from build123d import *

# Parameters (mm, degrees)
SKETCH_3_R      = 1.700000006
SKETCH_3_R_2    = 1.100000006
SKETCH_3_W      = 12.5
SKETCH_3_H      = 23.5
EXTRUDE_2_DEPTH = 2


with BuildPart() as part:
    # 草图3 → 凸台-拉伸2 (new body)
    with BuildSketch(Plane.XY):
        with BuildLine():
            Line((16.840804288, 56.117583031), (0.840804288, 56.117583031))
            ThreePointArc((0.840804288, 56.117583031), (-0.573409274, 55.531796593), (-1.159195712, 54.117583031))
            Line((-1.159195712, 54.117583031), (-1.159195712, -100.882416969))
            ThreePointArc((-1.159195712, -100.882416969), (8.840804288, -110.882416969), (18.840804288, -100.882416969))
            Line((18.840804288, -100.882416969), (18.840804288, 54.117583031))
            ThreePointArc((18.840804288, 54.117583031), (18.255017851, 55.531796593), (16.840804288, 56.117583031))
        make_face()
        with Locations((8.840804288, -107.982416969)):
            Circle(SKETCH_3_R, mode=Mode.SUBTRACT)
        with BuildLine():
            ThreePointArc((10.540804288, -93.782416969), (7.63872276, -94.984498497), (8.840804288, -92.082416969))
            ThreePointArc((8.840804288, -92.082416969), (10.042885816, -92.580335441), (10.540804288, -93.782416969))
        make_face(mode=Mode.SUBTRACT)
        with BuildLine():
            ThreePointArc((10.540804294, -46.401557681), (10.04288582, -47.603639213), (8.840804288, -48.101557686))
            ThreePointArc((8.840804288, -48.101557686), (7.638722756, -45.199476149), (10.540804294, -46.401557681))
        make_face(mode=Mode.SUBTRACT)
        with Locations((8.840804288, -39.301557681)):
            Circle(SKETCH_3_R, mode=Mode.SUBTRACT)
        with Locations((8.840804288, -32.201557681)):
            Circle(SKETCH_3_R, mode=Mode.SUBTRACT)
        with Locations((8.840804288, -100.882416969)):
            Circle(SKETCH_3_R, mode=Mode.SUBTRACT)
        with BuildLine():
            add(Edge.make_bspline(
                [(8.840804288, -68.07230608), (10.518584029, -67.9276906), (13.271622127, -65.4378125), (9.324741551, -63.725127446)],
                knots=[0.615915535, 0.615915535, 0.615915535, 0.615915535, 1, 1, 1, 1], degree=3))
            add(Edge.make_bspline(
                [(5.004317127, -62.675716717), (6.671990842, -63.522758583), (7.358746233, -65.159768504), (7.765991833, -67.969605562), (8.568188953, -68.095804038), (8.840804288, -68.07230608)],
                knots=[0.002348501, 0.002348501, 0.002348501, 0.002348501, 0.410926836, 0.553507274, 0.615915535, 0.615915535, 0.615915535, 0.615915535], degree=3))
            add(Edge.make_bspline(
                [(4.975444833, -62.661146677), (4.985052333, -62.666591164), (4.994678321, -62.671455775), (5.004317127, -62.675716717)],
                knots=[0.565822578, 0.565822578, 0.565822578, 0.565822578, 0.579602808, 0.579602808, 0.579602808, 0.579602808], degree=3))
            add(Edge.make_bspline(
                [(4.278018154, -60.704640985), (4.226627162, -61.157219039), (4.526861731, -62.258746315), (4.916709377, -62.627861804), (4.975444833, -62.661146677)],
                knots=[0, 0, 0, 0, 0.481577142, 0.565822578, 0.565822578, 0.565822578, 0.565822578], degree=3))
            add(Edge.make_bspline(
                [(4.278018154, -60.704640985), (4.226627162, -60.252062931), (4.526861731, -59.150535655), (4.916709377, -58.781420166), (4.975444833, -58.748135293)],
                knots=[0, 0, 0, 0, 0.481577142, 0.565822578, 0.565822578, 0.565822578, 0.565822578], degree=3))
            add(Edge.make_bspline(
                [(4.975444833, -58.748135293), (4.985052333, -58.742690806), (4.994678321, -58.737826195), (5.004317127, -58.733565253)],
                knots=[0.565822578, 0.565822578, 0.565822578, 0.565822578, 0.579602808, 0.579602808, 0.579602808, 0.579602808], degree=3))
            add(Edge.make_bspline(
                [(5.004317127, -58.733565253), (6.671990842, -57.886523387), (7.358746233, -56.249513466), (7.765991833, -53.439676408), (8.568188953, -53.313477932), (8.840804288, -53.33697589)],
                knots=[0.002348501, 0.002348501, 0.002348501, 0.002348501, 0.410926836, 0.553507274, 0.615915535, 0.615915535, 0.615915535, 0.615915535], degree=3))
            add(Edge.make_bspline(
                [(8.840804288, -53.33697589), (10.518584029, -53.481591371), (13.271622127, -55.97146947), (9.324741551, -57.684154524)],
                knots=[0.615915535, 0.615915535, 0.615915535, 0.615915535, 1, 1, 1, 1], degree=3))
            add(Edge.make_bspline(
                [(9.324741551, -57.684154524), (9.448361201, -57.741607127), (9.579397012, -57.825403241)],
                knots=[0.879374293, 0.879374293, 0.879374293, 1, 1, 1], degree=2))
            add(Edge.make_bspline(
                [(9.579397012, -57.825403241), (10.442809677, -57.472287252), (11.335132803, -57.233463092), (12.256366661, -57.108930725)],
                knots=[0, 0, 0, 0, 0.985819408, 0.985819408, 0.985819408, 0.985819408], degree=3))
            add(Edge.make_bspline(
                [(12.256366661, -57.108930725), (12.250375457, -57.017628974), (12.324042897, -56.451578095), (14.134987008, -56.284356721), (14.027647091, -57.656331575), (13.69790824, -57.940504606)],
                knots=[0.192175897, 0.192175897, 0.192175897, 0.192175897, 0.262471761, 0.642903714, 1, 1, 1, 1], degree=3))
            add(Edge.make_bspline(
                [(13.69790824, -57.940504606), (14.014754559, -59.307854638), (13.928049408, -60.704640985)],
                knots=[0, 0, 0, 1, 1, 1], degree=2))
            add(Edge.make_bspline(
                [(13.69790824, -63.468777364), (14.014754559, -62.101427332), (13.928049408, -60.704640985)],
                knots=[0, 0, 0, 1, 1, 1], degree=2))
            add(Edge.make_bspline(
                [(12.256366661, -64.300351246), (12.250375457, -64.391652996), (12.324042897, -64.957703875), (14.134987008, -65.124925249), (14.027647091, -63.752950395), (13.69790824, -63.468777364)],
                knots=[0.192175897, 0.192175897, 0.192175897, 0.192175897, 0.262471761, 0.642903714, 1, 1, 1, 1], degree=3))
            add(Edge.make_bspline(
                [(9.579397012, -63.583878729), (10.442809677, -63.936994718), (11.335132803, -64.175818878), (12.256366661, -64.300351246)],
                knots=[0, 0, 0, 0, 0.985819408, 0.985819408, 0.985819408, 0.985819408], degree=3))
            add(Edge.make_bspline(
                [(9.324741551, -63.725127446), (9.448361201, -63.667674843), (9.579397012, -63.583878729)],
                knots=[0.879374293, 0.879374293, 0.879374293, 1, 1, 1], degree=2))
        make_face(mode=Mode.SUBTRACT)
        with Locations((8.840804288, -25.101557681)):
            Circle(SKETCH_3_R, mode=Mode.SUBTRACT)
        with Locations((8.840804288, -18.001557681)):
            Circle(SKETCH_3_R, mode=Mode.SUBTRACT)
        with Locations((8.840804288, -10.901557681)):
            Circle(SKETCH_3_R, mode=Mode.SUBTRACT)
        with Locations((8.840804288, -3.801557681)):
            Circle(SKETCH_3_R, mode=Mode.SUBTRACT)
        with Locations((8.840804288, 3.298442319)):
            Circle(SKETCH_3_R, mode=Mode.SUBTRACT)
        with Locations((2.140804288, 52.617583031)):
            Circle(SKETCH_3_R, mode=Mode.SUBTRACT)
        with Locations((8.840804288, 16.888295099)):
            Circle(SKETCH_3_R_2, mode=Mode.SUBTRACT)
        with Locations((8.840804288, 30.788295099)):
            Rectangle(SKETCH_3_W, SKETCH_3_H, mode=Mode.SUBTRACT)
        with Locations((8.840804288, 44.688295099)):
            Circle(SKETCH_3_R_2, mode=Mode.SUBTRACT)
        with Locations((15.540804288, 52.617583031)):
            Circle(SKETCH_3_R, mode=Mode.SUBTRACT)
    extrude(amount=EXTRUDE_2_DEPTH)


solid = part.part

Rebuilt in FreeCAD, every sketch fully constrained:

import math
import FreeCAD as App
import Part
import Sketcher

doc = App.newDocument("Part")
body = doc.addObject("PartDesign::Body", "Body")

sketch1 = doc.addObject("Sketcher::SketchObject", "Sketch")
body.addObject(sketch1)
sketch1.AttachmentSupport = (doc.XY_Plane, [""])
sketch1.MapMode = "FlatFace"
sketch1.addGeometry(Part.LineSegment(App.Vector(16.840804, 56.117583, 0), App.Vector(0.840804, 56.117583, 0)), False)
sketch1.addGeometry(Part.ArcOfCircle(Part.Circle(App.Vector(0.840804, 54.117583, 0), App.Vector(0, 0, 1), 2), math.radians(90), math.radians(180)), False)
sketch1.addGeometry(Part.LineSegment(App.Vector(-1.159196, 54.117583, 0), App.Vector(-1.159196, -100.882417, 0)), False)
sketch1.addGeometry(Part.ArcOfCircle(Part.Circle(App.Vector(8.840804, -100.882417, 0), App.Vector(0, 0, 1), 10), math.radians(180), math.radians(360)), False)
sketch1.addGeometry(Part.LineSegment(App.Vector(18.840804, -100.882417, 0), App.Vector(18.840804, 54.117583, 0)), False)
sketch1.addGeometry(Part.ArcOfCircle(Part.Circle(App.Vector(16.840804, 54.117583, 0), App.Vector(0, 0, 1), 2), math.radians(0), math.radians(90)), False)
sketch1.addGeometry(Part.Circle(App.Vector(8.840804, -107.982417, 0), App.Vector(0, 0, 1), 1.7), False)
sketch1.addGeometry(Part.Circle(App.Vector(8.840804, -100.882417, 0), App.Vector(0, 0, 1), 1.7), False)
sketch1.addGeometry(Part.ArcOfCircle(Part.Circle(App.Vector(8.840804, -93.782417, 0), App.Vector(0, 0, 1), 1.7), math.radians(0), math.radians(90)), False)
sketch1.addGeometry(Part.ArcOfCircle(Part.Circle(App.Vector(8.840804, -93.782417, 0), App.Vector(0, 0, 1), 1.7), math.radians(90), math.radians(360)), False)
sketch1.addGeometry(Part.BSplineCurve([App.Vector(8.840804, -68.072306, 0), App.Vector(10.518584, -67.927691, 0), App.Vector(13.271622, -65.437813, 0), App.Vector(9.324742, -63.725127, 0)], [4, 4], [0.615915535, 1], False, 3, [1, 1, 1, 1], False), False)
sketch1.addGeometry(Part.BSplineCurve([App.Vector(5.004317, -62.675717, 0), App.Vector(6.671991, -63.522759, 0), App.Vector(7.358746, -65.159769, 0), App.Vector(7.765992, -67.969606, 0), App.Vector(8.568189, -68.095804, 0), App.Vector(8.840804, -68.072306, 0)], [4, 1, 1, 4], [0.002348501, 0.410926836, 0.553507274, 0.615915535], False, 3, [1, 1, 1, 1, 1, 1], False), False)
sketch1.addGeometry(Part.BSplineCurve([App.Vector(4.975445, -62.661147, 0), App.Vector(4.985052, -62.666591, 0), App.Vector(4.994678, -62.671456, 0), App.Vector(5.004317, -62.675717, 0)], [4, 4], [0.565822578, 0.579602808], False, 3, [1, 1, 1, 1], False), False)
sketch1.addGeometry(Part.BSplineCurve([App.Vector(4.278018, -60.704641, 0), App.Vector(4.226627, -61.157219, 0), App.Vector(4.526862, -62.258746, 0), App.Vector(4.916709, -62.627862, 0), App.Vector(4.975445, -62.661147, 0)], [4, 1, 4], [0, 0.481577142, 0.565822578], False, 3, [1, 1, 1, 1, 1], False), False)
sketch1.addGeometry(Part.BSplineCurve([App.Vector(4.278018, -60.704641, 0), App.Vector(4.226627, -60.252063, 0), App.Vector(4.526862, -59.150536, 0), App.Vector(4.916709, -58.78142, 0), App.Vector(4.975445, -58.748135, 0)], [4, 1, 4], [0, 0.481577142, 0.565822578], False, 3, [1, 1, 1, 1, 1], False), False)
sketch1.addGeometry(Part.BSplineCurve([App.Vector(4.975445, -58.748135, 0), App.Vector(4.985052, -58.742691, 0), App.Vector(4.994678, -58.737826, 0), App.Vector(5.004317, -58.733565, 0)], [4, 4], [0.565822578, 0.579602808], False, 3, [1, 1, 1, 1], False), False)
sketch1.addGeometry(Part.BSplineCurve([App.Vector(5.004317, -58.733565, 0), App.Vector(6.671991, -57.886523, 0), App.Vector(7.358746, -56.249513, 0), App.Vector(7.765992, -53.439676, 0), App.Vector(8.568189, -53.313478, 0), App.Vector(8.840804, -53.336976, 0)], [4, 1, 1, 4], [0.002348501, 0.410926836, 0.553507274, 0.615915535], False, 3, [1, 1, 1, 1, 1, 1], False), False)
sketch1.addGeometry(Part.BSplineCurve([App.Vector(8.840804, -53.336976, 0), App.Vector(10.518584, -53.481591, 0), App.Vector(13.271622, -55.971469, 0), App.Vector(9.324742, -57.684155, 0)], [4, 4], [0.615915535, 1], False, 3, [1, 1, 1, 1], False), False)
sketch1.addGeometry(Part.BSplineCurve([App.Vector(9.324742, -57.684155, 0), App.Vector(9.448361, -57.741607, 0), App.Vector(9.579397, -57.825403, 0)], [3, 3], [0.879374293, 1], False, 2, [1, 1, 1], False), False)
sketch1.addGeometry(Part.BSplineCurve([App.Vector(9.579397, -57.825403, 0), App.Vector(10.44281, -57.472287, 0), App.Vector(11.335133, -57.233463, 0), App.Vector(12.256367, -57.108931, 0)], [4, 4], [0, 0.985819408], False, 3, [1, 1, 1, 1], False), False)
sketch1.addGeometry(Part.BSplineCurve([App.Vector(12.256367, -57.108931, 0), App.Vector(12.250375, -57.017629, 0), App.Vector(12.324043, -56.451578, 0), App.Vector(14.134987, -56.284357, 0), App.Vector(14.027647, -57.656332, 0), App.Vector(13.697908, -57.940505, 0)], [4, 1, 1, 4], [0.192175897, 0.262471761, 0.642903714, 1], False, 3, [1, 1, 1, 1, 1, 1], False), False)
sketch1.addGeometry(Part.BSplineCurve([App.Vector(13.697908, -57.940505, 0), App.Vector(14.014755, -59.307855, 0), App.Vector(13.928049, -60.704641, 0)], [3, 3], [0, 1], False, 2, [1, 1, 1], False), False)
sketch1.addGeometry(Part.BSplineCurve([App.Vector(13.697908, -63.468777, 0), App.Vector(14.014755, -62.101427, 0), App.Vector(13.928049, -60.704641, 0)], [3, 3], [0, 1], False, 2, [1, 1, 1], False), False)
sketch1.addGeometry(Part.BSplineCurve([App.Vector(12.256367, -64.300351, 0), App.Vector(12.250375, -64.391653, 0), App.Vector(12.324043, -64.957704, 0), App.Vector(14.134987, -65.124925, 0), App.Vector(14.027647, -63.75295, 0), App.Vector(13.697908, -63.468777, 0)], [4, 1, 1, 4], [0.192175897, 0.262471761, 0.642903714, 1], False, 3, [1, 1, 1, 1, 1, 1], False), False)
sketch1.addGeometry(Part.BSplineCurve([App.Vector(9.579397, -63.583879, 0), App.Vector(10.44281, -63.936995, 0), App.Vector(11.335133, -64.175819, 0), App.Vector(12.256367, -64.300351, 0)], [4, 4], [0, 0.985819408], False, 3, [1, 1, 1, 1], False), False)
sketch1.addGeometry(Part.BSplineCurve([App.Vector(9.324742, -63.725127, 0), App.Vector(9.448361, -63.667675, 0), App.Vector(9.579397, -63.583879, 0)], [3, 3], [0.879374293, 1], False, 2, [1, 1, 1], False), False)
sketch1.addGeometry(Part.ArcOfCircle(Part.Circle(App.Vector(8.840804, -46.401558, 0), App.Vector(0, 0, 1), 1.7), math.radians(0), math.radians(270)), False)
sketch1.addGeometry(Part.ArcOfCircle(Part.Circle(App.Vector(8.840804, -46.401558, 0), App.Vector(0, 0, 1), 1.7), math.radians(-90), math.radians(0)), False)
sketch1.addGeometry(Part.Circle(App.Vector(8.840804, -39.301558, 0), App.Vector(0, 0, 1), 1.7), False)
sketch1.addGeometry(Part.Circle(App.Vector(8.840804, -32.201558, 0), App.Vector(0, 0, 1), 1.7), False)
sketch1.addGeometry(Part.Circle(App.Vector(2.140804, 52.617583, 0), App.Vector(0, 0, 1), 1.7), False)
sketch1.addGeometry(Part.Circle(App.Vector(8.840804, -25.101558, 0), App.Vector(0, 0, 1), 1.7), False)
sketch1.addGeometry(Part.Circle(App.Vector(8.840804, -18.001558, 0), App.Vector(0, 0, 1), 1.7), False)
sketch1.addGeometry(Part.Circle(App.Vector(8.840804, -10.901558, 0), App.Vector(0, 0, 1), 1.7), False)
sketch1.addGeometry(Part.Circle(App.Vector(8.840804, -3.801558, 0), App.Vector(0, 0, 1), 1.7), False)
sketch1.addGeometry(Part.Circle(App.Vector(8.840804, 3.298442, 0), App.Vector(0, 0, 1), 1.7), False)
sketch1.addGeometry(Part.Circle(App.Vector(8.840804, 16.888295, 0), App.Vector(0, 0, 1), 1.1), False)
sketch1.addGeometry(Part.LineSegment(App.Vector(15.090804, 19.038295, 0), App.Vector(2.590804, 19.038295, 0)), False)
sketch1.addGeometry(Part.LineSegment(App.Vector(2.590804, 19.038295, 0), App.Vector(2.590804, 42.538295, 0)), False)
sketch1.addGeometry(Part.LineSegment(App.Vector(2.590804, 42.538295, 0), App.Vector(15.090804, 42.538295, 0)), False)
sketch1.addGeometry(Part.LineSegment(App.Vector(15.090804, 42.538295, 0), App.Vector(15.090804, 19.038295, 0)), False)
sketch1.addGeometry(Part.Circle(App.Vector(8.840804, 44.688295, 0), App.Vector(0, 0, 1), 1.1), False)
sketch1.addGeometry(Part.Circle(App.Vector(15.540804, 52.617583, 0), App.Vector(0, 0, 1), 1.7), False)
sketch1.addConstraint(Sketcher.Constraint("Block", 10))
sketch1.addConstraint(Sketcher.Constraint("Block", 11))
sketch1.addConstraint(Sketcher.Constraint("Block", 12))
sketch1.addConstraint(Sketcher.Constraint("Block", 13))
sketch1.addConstraint(Sketcher.Constraint("Block", 14))
sketch1.addConstraint(Sketcher.Constraint("Block", 15))
sketch1.addConstraint(Sketcher.Constraint("Block", 16))
sketch1.addConstraint(Sketcher.Constraint("Block", 17))
sketch1.addConstraint(Sketcher.Constraint("Block", 18))
sketch1.addConstraint(Sketcher.Constraint("Block", 19))
sketch1.addConstraint(Sketcher.Constraint("Block", 20))
sketch1.addConstraint(Sketcher.Constraint("Block", 21))
sketch1.addConstraint(Sketcher.Constraint("Block", 22))
sketch1.addConstraint(Sketcher.Constraint("Block", 23))
sketch1.addConstraint(Sketcher.Constraint("Block", 24))
sketch1.addConstraint(Sketcher.Constraint("Block", 25))
sketch1.addConstraint(Sketcher.Constraint("Tangent", 0, 2, 1, 1))
sketch1.addConstraint(Sketcher.Constraint("Tangent", 1, 2, 2, 1))
sketch1.addConstraint(Sketcher.Constraint("Tangent", 2, 2, 3, 1))
sketch1.addConstraint(Sketcher.Constraint("Tangent", 3, 2, 4, 1))
sketch1.addConstraint(Sketcher.Constraint("Tangent", 4, 2, 5, 1))
sketch1.addConstraint(Sketcher.Constraint("Tangent", 5, 2, 0, 1))
sketch1.addConstraint(Sketcher.Constraint("Tangent", 8, 1, 9, 2))
sketch1.addConstraint(Sketcher.Constraint("Coincident", 9, 1, 8, 2))
sketch1.addConstraint(Sketcher.Constraint("Tangent", 26, 1, 27, 2))
sketch1.addConstraint(Sketcher.Constraint("Coincident", 27, 1, 26, 2))
sketch1.addConstraint(Sketcher.Constraint("Coincident", 37, 2, 38, 1))
sketch1.addConstraint(Sketcher.Constraint("Coincident", 38, 2, 39, 1))
sketch1.addConstraint(Sketcher.Constraint("Coincident", 39, 2, 40, 1))
sketch1.addConstraint(Sketcher.Constraint("Coincident", 40, 2, 37, 1))
sketch1.addConstraint(Sketcher.Constraint("Horizontal", 0))
sketch1.addConstraint(Sketcher.Constraint("Vertical", 2))
sketch1.addConstraint(Sketcher.Constraint("Vertical", 4))
sketch1.addConstraint(Sketcher.Constraint("Horizontal", 37))
sketch1.addConstraint(Sketcher.Constraint("Vertical", 38))
sketch1.addConstraint(Sketcher.Constraint("Horizontal", 39))
sketch1.addConstraint(Sketcher.Constraint("Vertical", 40))
sketch1.addConstraint(Sketcher.Constraint("Coincident", 7, 3, 3, 3))
sketch1.addConstraint(Sketcher.Constraint("Equal", 1, 5))
sketch1.addConstraint(Sketcher.Constraint("Equal", 6, 7))
sketch1.addConstraint(Sketcher.Constraint("Equal", 7, 8))
sketch1.addConstraint(Sketcher.Constraint("Equal", 9, 26))
sketch1.addConstraint(Sketcher.Constraint("Equal", 27, 28))
sketch1.addConstraint(Sketcher.Constraint("Equal", 28, 29))
sketch1.addConstraint(Sketcher.Constraint("Equal", 29, 30))
sketch1.addConstraint(Sketcher.Constraint("Equal", 30, 31))
sketch1.addConstraint(Sketcher.Constraint("Equal", 31, 32))
sketch1.addConstraint(Sketcher.Constraint("Equal", 32, 33))
sketch1.addConstraint(Sketcher.Constraint("Equal", 33, 34))
sketch1.addConstraint(Sketcher.Constraint("Equal", 34, 35))
sketch1.addConstraint(Sketcher.Constraint("Equal", 36, 41))
sketch1.addConstraint(Sketcher.Constraint("Equal", 35, 42))
sketch1.addConstraint(Sketcher.Constraint("Horizontal", 30, 3, 42, 3))
sketch1.addConstraint(Sketcher.Constraint("Horizontal", 9, 3, 8, 1))
sketch1.addConstraint(Sketcher.Constraint("Horizontal", 27, 3, 26, 1))
sketch1.addConstraint(Sketcher.Constraint("Vertical", 3, 3, 6, 3))
sketch1.addConstraint(Sketcher.Constraint("Vertical", 7, 3, 8, 3))
sketch1.addConstraint(Sketcher.Constraint("Vertical", 9, 3, 26, 3))
sketch1.addConstraint(Sketcher.Constraint("Vertical", 27, 3, 28, 3))
sketch1.addConstraint(Sketcher.Constraint("Vertical", 28, 3, 29, 3))
sketch1.addConstraint(Sketcher.Constraint("Vertical", 29, 3, 31, 3))
sketch1.addConstraint(Sketcher.Constraint("Vertical", 31, 3, 32, 3))
sketch1.addConstraint(Sketcher.Constraint("Vertical", 32, 3, 33, 3))
sketch1.addConstraint(Sketcher.Constraint("Vertical", 33, 3, 34, 3))
sketch1.addConstraint(Sketcher.Constraint("Vertical", 34, 3, 35, 3))
sketch1.addConstraint(Sketcher.Constraint("Vertical", 35, 3, 36, 3))
sketch1.addConstraint(Sketcher.Constraint("Vertical", 36, 3, 41, 3))
sketch1.addConstraint(Sketcher.Constraint("Vertical", 41, 3, 9, 1))
sketch1.addConstraint(Sketcher.Constraint("Vertical", 9, 1, 27, 1))
sketch1.addConstraint(Sketcher.Constraint("Radius", 1, 2.0))
sketch1.addConstraint(Sketcher.Constraint("Radius", 3, 10.0))
sketch1.addConstraint(Sketcher.Constraint("Diameter", 6, 3.4))
sketch1.addConstraint(Sketcher.Constraint("Diameter", 36, 2.2))
sketch1.addConstraint(Sketcher.Constraint("DistanceY", 2, 2, 2, 1, 155.0))
sketch1.addConstraint(Sketcher.Constraint("DistanceX", 37, 2, 37, 1, 12.5))
sketch1.addConstraint(Sketcher.Constraint("DistanceY", 38, 1, 38, 2, 23.5))
sketch1.addConstraint(Sketcher.Constraint("DistanceY", 6, 3, 3, 3, 7.1))
sketch1.addConstraint(Sketcher.Constraint("DistanceY", 3, 3, 8, 3, 7.1))
sketch1.addConstraint(Sketcher.Constraint("DistanceY", 26, 3, 28, 3, 7.1))
sketch1.addConstraint(Sketcher.Constraint("DistanceY", 28, 3, 29, 3, 7.1))
sketch1.addConstraint(Sketcher.Constraint("DistanceX", 1, 3, 30, 3, 1.3))
sketch1.addConstraint(Sketcher.Constraint("DistanceY", 30, 3, 1, 3, 1.5))
sketch1.addConstraint(Sketcher.Constraint("DistanceY", 29, 3, 31, 3, 7.1))
sketch1.addConstraint(Sketcher.Constraint("DistanceY", 31, 3, 32, 3, 7.1))
sketch1.addConstraint(Sketcher.Constraint("DistanceY", 32, 3, 33, 3, 7.1))
sketch1.addConstraint(Sketcher.Constraint("DistanceY", 33, 3, 34, 3, 7.1))
sketch1.addConstraint(Sketcher.Constraint("DistanceY", 34, 3, 35, 3, 7.1))
sketch1.addConstraint(Sketcher.Constraint("DistanceY", 36, 3, 41, 3, 27.8))
sketch1.addConstraint(Sketcher.Constraint("DistanceX", 42, 3, 5, 3, 1.3))
sketch1.addConstraint(Sketcher.Constraint("DistanceX", 37, 2, 36, 3, 6.25))
sketch1.addConstraint(Sketcher.Constraint("DistanceY", 36, 3, 37, 2, 2.15))
sketch1.addConstraint(Sketcher.Constraint("DistanceY", 8, 3, 26, 3, 47.380859))
sketch1.addConstraint(Sketcher.Constraint("DistanceX", -1, 1, 1, 3, 0.840804))
sketch1.addConstraint(Sketcher.Constraint("DistanceY", -1, 1, 1, 3, 54.117583))
sketch1.addConstraint(Sketcher.Constraint("DistanceY", -1, 1, 36, 3, 16.888295))
pad1 = doc.addObject("PartDesign::Pad", "Pad")
body.addObject(pad1)
pad1.Profile = sketch1
pad1.Length = 2

doc.recompute()
